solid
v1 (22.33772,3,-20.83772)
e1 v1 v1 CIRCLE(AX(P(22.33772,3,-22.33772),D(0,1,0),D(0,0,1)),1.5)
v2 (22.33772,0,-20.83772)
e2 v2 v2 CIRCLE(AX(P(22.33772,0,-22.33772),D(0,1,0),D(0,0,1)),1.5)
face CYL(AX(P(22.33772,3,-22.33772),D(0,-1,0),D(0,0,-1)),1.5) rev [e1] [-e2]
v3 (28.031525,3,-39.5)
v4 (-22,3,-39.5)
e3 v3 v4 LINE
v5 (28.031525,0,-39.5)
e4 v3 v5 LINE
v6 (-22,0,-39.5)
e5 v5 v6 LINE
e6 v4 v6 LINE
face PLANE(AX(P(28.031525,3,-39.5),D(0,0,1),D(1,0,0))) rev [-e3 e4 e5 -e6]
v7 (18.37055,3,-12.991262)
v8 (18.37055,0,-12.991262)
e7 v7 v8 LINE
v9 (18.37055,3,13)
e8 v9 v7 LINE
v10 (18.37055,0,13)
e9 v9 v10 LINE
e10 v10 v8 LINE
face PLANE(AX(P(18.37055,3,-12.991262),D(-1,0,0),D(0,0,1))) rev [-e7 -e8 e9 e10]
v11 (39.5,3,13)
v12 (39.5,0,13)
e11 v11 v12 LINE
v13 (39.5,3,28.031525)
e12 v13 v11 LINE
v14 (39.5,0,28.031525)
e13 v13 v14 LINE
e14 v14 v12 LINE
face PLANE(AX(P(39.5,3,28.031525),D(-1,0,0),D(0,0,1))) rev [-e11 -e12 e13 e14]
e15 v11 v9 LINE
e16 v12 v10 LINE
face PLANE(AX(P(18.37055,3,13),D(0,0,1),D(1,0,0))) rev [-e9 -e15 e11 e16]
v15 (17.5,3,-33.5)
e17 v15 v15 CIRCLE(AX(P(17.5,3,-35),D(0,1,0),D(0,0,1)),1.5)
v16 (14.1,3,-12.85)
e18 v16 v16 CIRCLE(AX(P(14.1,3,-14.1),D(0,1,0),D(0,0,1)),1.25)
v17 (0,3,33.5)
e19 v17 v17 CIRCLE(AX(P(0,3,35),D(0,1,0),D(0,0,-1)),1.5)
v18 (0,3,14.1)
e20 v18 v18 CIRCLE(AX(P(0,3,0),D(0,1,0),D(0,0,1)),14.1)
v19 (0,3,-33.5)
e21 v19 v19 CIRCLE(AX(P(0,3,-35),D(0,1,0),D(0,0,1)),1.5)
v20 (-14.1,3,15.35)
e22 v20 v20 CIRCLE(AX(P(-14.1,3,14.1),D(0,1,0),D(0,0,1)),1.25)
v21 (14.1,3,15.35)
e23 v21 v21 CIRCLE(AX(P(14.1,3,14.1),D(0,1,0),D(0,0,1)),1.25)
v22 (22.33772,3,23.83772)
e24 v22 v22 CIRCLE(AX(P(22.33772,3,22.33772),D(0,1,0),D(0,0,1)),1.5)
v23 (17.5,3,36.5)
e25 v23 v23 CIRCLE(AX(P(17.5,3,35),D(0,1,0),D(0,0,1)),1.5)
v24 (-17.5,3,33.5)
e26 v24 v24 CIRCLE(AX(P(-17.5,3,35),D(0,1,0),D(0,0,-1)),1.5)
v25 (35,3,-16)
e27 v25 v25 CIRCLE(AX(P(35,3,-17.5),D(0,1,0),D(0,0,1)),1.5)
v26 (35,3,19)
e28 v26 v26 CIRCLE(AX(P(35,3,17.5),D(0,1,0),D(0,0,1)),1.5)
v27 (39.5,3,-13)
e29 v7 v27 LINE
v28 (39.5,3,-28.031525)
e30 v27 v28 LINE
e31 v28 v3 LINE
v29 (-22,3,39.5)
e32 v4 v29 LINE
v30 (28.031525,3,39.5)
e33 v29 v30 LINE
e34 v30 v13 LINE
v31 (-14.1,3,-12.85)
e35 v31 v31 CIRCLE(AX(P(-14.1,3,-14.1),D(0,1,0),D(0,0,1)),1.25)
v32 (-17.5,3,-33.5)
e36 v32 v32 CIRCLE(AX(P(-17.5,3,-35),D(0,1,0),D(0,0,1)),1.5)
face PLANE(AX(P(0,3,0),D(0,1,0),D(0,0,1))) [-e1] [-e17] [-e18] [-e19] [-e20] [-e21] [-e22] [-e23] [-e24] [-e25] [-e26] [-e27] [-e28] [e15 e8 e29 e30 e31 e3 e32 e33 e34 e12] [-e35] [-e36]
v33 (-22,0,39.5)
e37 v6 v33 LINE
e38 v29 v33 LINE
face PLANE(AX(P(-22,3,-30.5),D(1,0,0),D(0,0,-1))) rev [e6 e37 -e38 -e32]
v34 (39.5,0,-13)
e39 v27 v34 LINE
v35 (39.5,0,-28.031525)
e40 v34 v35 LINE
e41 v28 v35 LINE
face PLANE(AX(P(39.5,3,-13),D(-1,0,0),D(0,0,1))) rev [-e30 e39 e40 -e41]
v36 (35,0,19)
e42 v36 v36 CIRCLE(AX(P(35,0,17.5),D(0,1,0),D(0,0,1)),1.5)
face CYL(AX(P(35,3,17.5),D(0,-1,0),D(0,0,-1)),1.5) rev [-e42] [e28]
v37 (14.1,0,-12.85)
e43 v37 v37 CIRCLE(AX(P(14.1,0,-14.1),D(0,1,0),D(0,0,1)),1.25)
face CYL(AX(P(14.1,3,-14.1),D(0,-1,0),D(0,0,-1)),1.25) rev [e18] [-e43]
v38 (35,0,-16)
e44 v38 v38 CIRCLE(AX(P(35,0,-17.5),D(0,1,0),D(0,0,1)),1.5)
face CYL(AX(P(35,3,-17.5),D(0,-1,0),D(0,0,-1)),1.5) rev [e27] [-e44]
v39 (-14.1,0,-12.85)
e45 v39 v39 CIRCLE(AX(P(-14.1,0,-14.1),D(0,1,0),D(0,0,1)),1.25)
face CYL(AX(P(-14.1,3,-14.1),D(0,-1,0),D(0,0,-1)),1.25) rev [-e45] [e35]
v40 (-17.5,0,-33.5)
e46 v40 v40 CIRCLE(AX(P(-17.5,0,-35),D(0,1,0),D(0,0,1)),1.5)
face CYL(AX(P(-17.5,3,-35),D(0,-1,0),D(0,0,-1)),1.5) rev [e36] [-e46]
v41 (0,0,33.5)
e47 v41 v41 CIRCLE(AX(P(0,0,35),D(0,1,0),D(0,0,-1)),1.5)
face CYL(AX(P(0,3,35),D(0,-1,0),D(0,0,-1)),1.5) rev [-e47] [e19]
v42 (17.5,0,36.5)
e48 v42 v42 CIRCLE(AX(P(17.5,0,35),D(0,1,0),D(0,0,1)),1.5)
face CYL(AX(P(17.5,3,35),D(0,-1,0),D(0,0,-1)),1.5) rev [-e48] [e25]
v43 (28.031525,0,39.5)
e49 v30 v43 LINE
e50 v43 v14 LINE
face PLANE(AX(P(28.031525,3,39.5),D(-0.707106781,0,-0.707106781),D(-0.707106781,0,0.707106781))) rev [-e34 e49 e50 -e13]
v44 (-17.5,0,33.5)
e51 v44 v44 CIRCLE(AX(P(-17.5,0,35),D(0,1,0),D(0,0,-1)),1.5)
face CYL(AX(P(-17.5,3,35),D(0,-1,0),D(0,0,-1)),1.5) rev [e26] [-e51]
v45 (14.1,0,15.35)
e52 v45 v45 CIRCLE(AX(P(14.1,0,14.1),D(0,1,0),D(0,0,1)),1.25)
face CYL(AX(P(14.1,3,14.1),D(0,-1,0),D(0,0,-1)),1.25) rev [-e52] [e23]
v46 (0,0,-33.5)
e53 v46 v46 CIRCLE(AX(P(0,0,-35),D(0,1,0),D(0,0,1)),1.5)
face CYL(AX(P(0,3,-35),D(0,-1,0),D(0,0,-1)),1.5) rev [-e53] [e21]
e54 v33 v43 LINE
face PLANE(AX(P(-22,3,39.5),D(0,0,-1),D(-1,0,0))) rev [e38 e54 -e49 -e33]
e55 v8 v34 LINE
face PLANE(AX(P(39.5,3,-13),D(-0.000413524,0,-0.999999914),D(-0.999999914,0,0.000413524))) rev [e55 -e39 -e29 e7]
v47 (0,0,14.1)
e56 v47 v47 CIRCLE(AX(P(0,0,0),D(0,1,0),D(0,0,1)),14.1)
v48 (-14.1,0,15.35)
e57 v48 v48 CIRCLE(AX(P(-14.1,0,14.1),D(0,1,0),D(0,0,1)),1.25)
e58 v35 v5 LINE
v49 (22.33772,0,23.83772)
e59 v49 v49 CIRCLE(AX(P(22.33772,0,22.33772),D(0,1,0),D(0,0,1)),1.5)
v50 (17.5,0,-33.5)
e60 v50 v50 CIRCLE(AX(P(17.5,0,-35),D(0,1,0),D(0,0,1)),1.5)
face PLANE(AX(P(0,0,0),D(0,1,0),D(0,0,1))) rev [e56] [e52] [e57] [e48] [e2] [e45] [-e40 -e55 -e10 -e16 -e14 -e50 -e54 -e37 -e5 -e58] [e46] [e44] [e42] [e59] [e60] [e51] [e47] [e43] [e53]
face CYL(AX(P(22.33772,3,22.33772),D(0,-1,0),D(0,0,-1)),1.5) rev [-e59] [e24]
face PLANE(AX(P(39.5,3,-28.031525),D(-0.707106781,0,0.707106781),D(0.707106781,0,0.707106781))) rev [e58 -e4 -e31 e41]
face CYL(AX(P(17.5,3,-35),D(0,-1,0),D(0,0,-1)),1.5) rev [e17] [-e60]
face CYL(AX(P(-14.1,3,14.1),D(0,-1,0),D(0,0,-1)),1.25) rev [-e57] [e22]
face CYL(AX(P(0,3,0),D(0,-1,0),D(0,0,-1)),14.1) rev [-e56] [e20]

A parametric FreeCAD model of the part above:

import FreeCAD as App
import Part
import Sketcher
Q = App.Units.Quantity

doc = App.newDocument("Part")
body = doc.addObject("PartDesign::Body", "Body")

# Sketch on XZ plane
sketch1 = body.newObject("Sketcher::SketchObject", "Sketch")
sketch1.AttachmentSupport = (doc.getObject("XZ_Plane"), [""])
sketch1.MapMode = "FlatFace"
sketch1.addGeometry([
    Part.LineSegment(App.Vector(18.4, -13, 0), App.Vector(39.5, -13, 0)),  # 0
    Part.LineSegment(App.Vector(39.5, -13, 0), App.Vector(39.5, -28, 0)),  # 1
    Part.LineSegment(App.Vector(39.5, -28, 0), App.Vector(28, -39.5, 0)),  # 2
    Part.LineSegment(App.Vector(28, -39.5, 0), App.Vector(-22, -39.5, 0)),  # 3
    Part.LineSegment(App.Vector(-22, -39.5, 0), App.Vector(-22, 39.5, 0)),  # 4
    Part.LineSegment(App.Vector(-22, 39.5, 0), App.Vector(28, 39.5, 0)),  # 5
    Part.LineSegment(App.Vector(28, 39.5, 0), App.Vector(39.5, 28, 0)),  # 6
    Part.LineSegment(App.Vector(39.5, 28, 0), App.Vector(39.5, 13, 0)),  # 7
    Part.LineSegment(App.Vector(39.5, 13, 0), App.Vector(18.4, 13, 0)),  # 8
    Part.LineSegment(App.Vector(18.4, 13, 0), App.Vector(18.4, -13, 0)),  # 9
    Part.Circle(App.Vector(17.5, 35, 0), App.Vector(0, 0, 1), 1.5),  # 10
    Part.Circle(App.Vector(22.3, 22.3, 0), App.Vector(0, 0, 1), 1.5),  # 11
    Part.Circle(App.Vector(35, 17.5, 0), App.Vector(0, 0, 1), 1.5),  # 12
    Part.Circle(App.Vector(14.1, 14.1, 0), App.Vector(0, 0, 1), 1.2),  # 13
    Part.Circle(App.Vector(0, 35, 0), App.Vector(0, 0, 1), 1.5),  # 14
    Part.Circle(App.Vector(-17.5, 35, 0), App.Vector(0, 0, 1), 1.5),  # 15
    Part.Circle(App.Vector(-14.1, 14.1, 0), App.Vector(0, 0, 1), 1.2),  # 16
    Part.Circle(App.Vector(35, -17.5, 0), App.Vector(0, 0, 1), 1.5),  # 17
    Part.Circle(App.Vector(14.1, -14.1, 0), App.Vector(0, 0, 1), 1.2),  # 18
    Part.Circle(App.Vector(22.3, -22.3, 0), App.Vector(0, 0, 1), 1.5),  # 19
    Part.Circle(App.Vector(17.5, -35, 0), App.Vector(0, 0, 1), 1.5),  # 20
    Part.Circle(App.Vector(0, 0, 0), App.Vector(0, 0, 1), 14.1),  # 21
    Part.Circle(App.Vector(-14.1, -14.1, 0), App.Vector(0, 0, 1), 1.2),  # 22
    Part.Circle(App.Vector(0, -35, 0), App.Vector(0, 0, 1), 1.5),  # 23
    Part.Circle(App.Vector(-17.5, -35, 0), App.Vector(0, 0, 1), 1.5),  # 24
], False)
sketch1.addConstraint([
    Sketcher.Constraint("Coincident", 0, 2, 1, 1),
    Sketcher.Constraint("Coincident", 1, 2, 2, 1),
    Sketcher.Constraint("Coincident", 2, 2, 3, 1),
    Sketcher.Constraint("Coincident", 3, 2, 4, 1),
    Sketcher.Constraint("Coincident", 4, 2, 5, 1),
    Sketcher.Constraint("Coincident", 5, 2, 6, 1),
    Sketcher.Constraint("Coincident", 6, 2, 7, 1),
    Sketcher.Constraint("Coincident", 7, 2, 8, 1),
    Sketcher.Constraint("Coincident", 8, 2, 9, 1),
    Sketcher.Constraint("Coincident", 9, 2, 0, 1),
    Sketcher.Constraint("Vertical", 1),
    Sketcher.Constraint("Horizontal", 3),
    Sketcher.Constraint("Vertical", 4),
    Sketcher.Constraint("Horizontal", 5),
    Sketcher.Constraint("Vertical", 7),
    Sketcher.Constraint("Horizontal", 8),
    Sketcher.Constraint("Vertical", 9),
    Sketcher.Constraint("Coincident", 21, 3, -1, 1),
    Sketcher.Constraint("Equal", 10, 11),
    Sketcher.Constraint("Equal", 11, 12),
    Sketcher.Constraint("Equal", 12, 14),
    Sketcher.Constraint("Equal", 14, 15),
    Sketcher.Constraint("Equal", 13, 16),
    Sketcher.Constraint("Equal", 15, 17),
    Sketcher.Constraint("Equal", 16, 18),
    Sketcher.Constraint("Equal", 17, 19),
    Sketcher.Constraint("Equal", 19, 20),
    Sketcher.Constraint("Equal", 18, 22),
    Sketcher.Constraint("Equal", 20, 23),
    Sketcher.Constraint("Equal", 23, 24),
    Sketcher.Constraint("Symmetric", 16, 3, 18, 3, -1, 1),
    Sketcher.Constraint("Symmetric", 15, 3, 20, 3, -1, 1),
    Sketcher.Constraint("Symmetric", 13, 3, 22, 3, -1, 1),
    Sketcher.Constraint("Symmetric", 14, 3, 23, 3, -1, 1),
    Sketcher.Constraint("Symmetric", 10, 3, 24, 3, -1, 1),
    Sketcher.Constraint("Symmetric", 10, 3, 15, 3, -2),
    Sketcher.Constraint("Symmetric", 13, 3, 16, 3, -2),
    Sketcher.Constraint("Symmetric", 12, 3, 17, 3, -1),
    Sketcher.Constraint("Symmetric", 11, 3, 19, 3, -1),
    Sketcher.Constraint("Symmetric", 2, 2, 5, 2, -1),
    Sketcher.Constraint("Symmetric", 1, 2, 6, 2, -1),
    Sketcher.Constraint("PointOnObject", 14, 3, -2),
    Sketcher.Constraint("Perpendicular", 2, 6),
    Sketcher.Constraint("Horizontal", 10, 3, 14, 3),
    Sketcher.Constraint("Equal", 1, 7),
    Sketcher.Constraint("Diameter", 10, Q("3 mm")),
    Sketcher.Constraint("Diameter", 13, Q("2.5 mm")),
    Sketcher.Constraint("Diameter", 21, Q("28.2 mm")),
    Sketcher.Constraint("DistanceY", 4, 1, 4, 2, Q("79 mm")),
    Sketcher.Constraint("DistanceY", -1, 1, 10, 3, Q("35 mm")),
    Sketcher.Constraint("DistanceX", -1, 1, 12, 3, Q("35 mm")),
    Sketcher.Constraint("DistanceY", 0, 2, -1, 1, Q("13 mm")),
    Sketcher.Constraint("DistanceX", 3, 2, -1, 1, Q("22 mm")),
    Sketcher.Constraint("DistanceX", 15, 3, 10, 3, Q("35 mm")),
    Sketcher.Constraint("DistanceY", 17, 3, 12, 3, Q("35 mm")),
    Sketcher.Constraint("DistanceX", 20, 3, 0, 2, Q("22 mm")),
    Sketcher.Constraint("DistanceX", -1, 1, 13, 3, Q("14.1 mm")),
    Sketcher.Constraint("DistanceY", -1, 1, 13, 3, Q("14.1 mm")),
    Sketcher.Constraint("DistanceX", 8, 2, 8, 1, Q("21.12945 mm")),
    Sketcher.Constraint("DistanceX", 3, 2, 3, 1, Q("50.031525 mm")),
    Sketcher.Constraint("DistanceY", 9, 2, 9, 1, Q("25.991262 mm")),
    Sketcher.Constraint("DistanceX", -1, 1, 11, 3, Q("22.33772 mm")),
    Sketcher.Constraint("DistanceY", -1, 1, 11, 3, Q("22.33772 mm")),
])
pad1 = body.newObject("PartDesign::Pad", "Pad")
pad1.Profile = sketch1
pad1.Length = 3
pad1.Reversed = True

doc.recompute()
